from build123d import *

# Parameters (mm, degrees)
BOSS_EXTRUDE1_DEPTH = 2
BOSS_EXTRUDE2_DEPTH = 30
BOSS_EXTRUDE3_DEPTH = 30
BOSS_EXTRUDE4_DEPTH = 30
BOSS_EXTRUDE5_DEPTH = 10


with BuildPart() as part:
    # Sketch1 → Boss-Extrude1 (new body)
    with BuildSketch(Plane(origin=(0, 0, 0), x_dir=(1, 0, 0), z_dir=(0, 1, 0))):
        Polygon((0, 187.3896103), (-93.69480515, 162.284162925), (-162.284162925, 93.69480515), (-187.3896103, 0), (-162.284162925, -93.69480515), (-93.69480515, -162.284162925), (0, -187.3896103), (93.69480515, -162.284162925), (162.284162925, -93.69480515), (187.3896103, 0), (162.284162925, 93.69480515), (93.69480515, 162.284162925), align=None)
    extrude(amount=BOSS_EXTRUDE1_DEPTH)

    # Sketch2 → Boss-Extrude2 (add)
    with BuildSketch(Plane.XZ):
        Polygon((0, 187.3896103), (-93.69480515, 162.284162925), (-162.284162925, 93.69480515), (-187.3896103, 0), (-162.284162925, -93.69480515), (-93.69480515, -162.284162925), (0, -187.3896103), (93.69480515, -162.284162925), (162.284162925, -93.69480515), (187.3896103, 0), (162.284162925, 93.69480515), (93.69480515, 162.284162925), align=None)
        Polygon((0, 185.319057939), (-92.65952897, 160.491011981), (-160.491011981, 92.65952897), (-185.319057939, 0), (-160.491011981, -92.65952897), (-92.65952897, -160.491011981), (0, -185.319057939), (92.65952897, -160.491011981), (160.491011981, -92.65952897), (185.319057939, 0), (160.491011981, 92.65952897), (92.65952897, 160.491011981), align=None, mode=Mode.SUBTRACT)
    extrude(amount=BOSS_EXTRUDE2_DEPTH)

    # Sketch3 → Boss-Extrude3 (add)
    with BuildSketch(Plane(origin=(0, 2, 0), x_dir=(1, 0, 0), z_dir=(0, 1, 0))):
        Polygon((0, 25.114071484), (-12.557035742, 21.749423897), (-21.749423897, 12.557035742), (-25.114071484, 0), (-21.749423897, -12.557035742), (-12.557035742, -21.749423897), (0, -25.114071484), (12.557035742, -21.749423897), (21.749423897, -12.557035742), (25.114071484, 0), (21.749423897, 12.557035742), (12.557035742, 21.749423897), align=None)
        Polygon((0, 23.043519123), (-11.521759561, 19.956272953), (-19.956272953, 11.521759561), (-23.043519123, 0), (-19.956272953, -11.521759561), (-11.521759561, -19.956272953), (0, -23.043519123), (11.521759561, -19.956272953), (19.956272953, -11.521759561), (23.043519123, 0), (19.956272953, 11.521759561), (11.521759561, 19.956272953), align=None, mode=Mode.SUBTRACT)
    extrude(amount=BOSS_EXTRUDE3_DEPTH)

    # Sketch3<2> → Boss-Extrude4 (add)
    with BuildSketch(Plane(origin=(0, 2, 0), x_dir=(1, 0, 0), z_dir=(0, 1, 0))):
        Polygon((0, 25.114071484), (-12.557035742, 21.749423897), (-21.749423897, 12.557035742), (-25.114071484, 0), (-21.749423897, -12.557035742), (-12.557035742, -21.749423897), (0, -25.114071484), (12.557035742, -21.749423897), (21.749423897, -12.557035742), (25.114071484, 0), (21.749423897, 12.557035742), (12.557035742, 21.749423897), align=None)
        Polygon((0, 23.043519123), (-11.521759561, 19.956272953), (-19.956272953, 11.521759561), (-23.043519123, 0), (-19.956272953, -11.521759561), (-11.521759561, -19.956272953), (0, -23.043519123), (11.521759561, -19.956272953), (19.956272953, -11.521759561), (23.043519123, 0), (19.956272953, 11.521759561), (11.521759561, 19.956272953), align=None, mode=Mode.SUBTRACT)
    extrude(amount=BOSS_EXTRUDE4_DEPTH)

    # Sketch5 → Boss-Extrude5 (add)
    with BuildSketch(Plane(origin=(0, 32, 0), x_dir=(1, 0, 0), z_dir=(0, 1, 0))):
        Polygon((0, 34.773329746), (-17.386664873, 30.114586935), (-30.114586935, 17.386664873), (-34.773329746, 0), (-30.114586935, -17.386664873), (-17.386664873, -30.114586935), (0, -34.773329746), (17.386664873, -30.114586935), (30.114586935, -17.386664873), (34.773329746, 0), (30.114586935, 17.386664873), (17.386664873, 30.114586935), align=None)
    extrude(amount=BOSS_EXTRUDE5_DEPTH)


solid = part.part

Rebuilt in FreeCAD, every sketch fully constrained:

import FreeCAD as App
import Part
import Sketcher
from FreeCAD import Vector
Q = App.Units.Quantity


def add_polygon(sketch, points):
    """Adds a closed chain of lines whose ends are joined by coincident constraints."""
    first, n = sketch.GeometryCount, len(points)
    for a, b in zip(points, points[1:] + points[:1]):
        sketch.addGeometry(Part.LineSegment(App.Vector(*a, 0), App.Vector(*b, 0)), False)
    for i in range(n):
        sketch.addConstraint(Sketcher.Constraint("Coincident", first + i, 2, first + (i + 1) % n, 1))

doc = App.newDocument("Part")
body = doc.addObject("PartDesign::Body", "Body")

# Sketch on XZ plane
sketch1 = body.newObject("Sketcher::SketchObject", "Sketch")
sketch1.AttachmentSupport = (doc.getObject("XZ_Plane"), [""])
sketch1.MapMode = "FlatFace"
add_polygon(sketch1, [(0, -187.38961), (-93.694805, -162.284163), (-162.284163, -93.694805), (-187.38961, 0), (-162.284163, 93.694805), (-93.694805, 162.284163), (0, 187.38961), (93.694805, 162.284163), (162.284163, 93.694805), (187.38961, 0), (162.284163, -93.694805), (93.694805, -162.284163)])  # lines 0-11
sketch1.addConstraint(Sketcher.Constraint("Symmetric", 0, 2, 6, 2, -1, 1))
sketch1.addConstraint(Sketcher.Constraint("Symmetric", 1, 2, 7, 2, -1, 1))
sketch1.addConstraint(Sketcher.Constraint("Symmetric", 2, 2, 8, 2, -1, 1))
sketch1.addConstraint(Sketcher.Constraint("Symmetric", 3, 2, 9, 2, -1, 1))
sketch1.addConstraint(Sketcher.Constraint("Symmetric", 4, 2, 10, 2, -1, 1))
sketch1.addConstraint(Sketcher.Constraint("Symmetric", 5, 2, 11, 2, -1, 1))
sketch1.addConstraint(Sketcher.Constraint("Symmetric", 4, 2, 6, 2, -2))
sketch1.addConstraint(Sketcher.Constraint("Symmetric", 3, 2, 7, 2, -2))
sketch1.addConstraint(Sketcher.Constraint("PointOnObject", 2, 2, -1))
sketch1.addConstraint(Sketcher.Constraint("PointOnObject", 5, 2, -2))
sketch1.addConstraint(Sketcher.Constraint("Perpendicular", 0, 3))
sketch1.addConstraint(Sketcher.Constraint("Perpendicular", 1, 4))
sketch1.addConstraint(Sketcher.Constraint("Equal", 0, 1))
sketch1.addConstraint(Sketcher.Constraint("Equal", 1, 2))
sketch1.addConstraint(Sketcher.Constraint("Angle", 0, Q("165 deg")))
sketch1.addConstraint(Sketcher.Constraint("Distance", 0, 97.0))
pad1 = body.newObject("PartDesign::Pad", "Pad")
pad1.Profile = sketch1
pad1.Length = 2
pad1.Reversed = True

# Sketch on XZ plane
sketch2 = body.newObject("Sketcher::SketchObject", "Sketch001")
sketch2.AttachmentSupport = (doc.getObject("XZ_Plane"), [""])
sketch2.MapMode = "FlatFace"
add_polygon(sketch2, [(0, 187.38961), (-93.694805, 162.284163), (-162.284163, 93.694805), (-187.38961, 0), (-162.284163, -93.694805), (-93.694805, -162.284163), (0, -187.38961), (93.694805, -162.284163), (162.284163, -93.694805), (187.38961, 0), (162.284163, 93.694805), (93.694805, 162.284163)])  # lines 0-11
add_polygon(sketch2, [(-92.659529, 160.491012), (0, 185.319058), (92.659529, 160.491012), (160.491012, 92.659529), (185.319058, 0), (160.491012, -92.659529), (92.659529, -160.491012), (0, -185.319058), (-92.659529, -160.491012), (-160.491012, -92.659529), (-185.319058, 0), (-160.491012, 92.659529)])  # lines 12-23
sketch2.addConstraint(Sketcher.Constraint("Symmetric", 0, 2, 6, 2, -1, 1))
sketch2.addConstraint(Sketcher.Constraint("Symmetric", 1, 2, 7, 2, -1, 1))
sketch2.addConstraint(Sketcher.Constraint("Symmetric", 2, 2, 8, 2, -1, 1))
sketch2.addConstraint(Sketcher.Constraint("Symmetric", 3, 2, 9, 2, -1, 1))
sketch2.addConstraint(Sketcher.Constraint("Symmetric", 4, 2, 10, 2, -1, 1))
sketch2.addConstraint(Sketcher.Constraint("Symmetric", 5, 2, 11, 2, -1, 1))
sketch2.addConstraint(Sketcher.Constraint("Symmetric", 12, 2, 18, 2, -1, 1))
sketch2.addConstraint(Sketcher.Constraint("Symmetric", 13, 2, 19, 2, -1, 1))
sketch2.addConstraint(Sketcher.Constraint("Symmetric", 14, 2, 20, 2, -1, 1))
sketch2.addConstraint(Sketcher.Constraint("Symmetric", 15, 2, 21, 2, -1, 1))
sketch2.addConstraint(Sketcher.Constraint("Symmetric", 16, 2, 22, 2, -1, 1))
sketch2.addConstraint(Sketcher.Constraint("Symmetric", 17, 2, 23, 2, -1, 1))
sketch2.addConstraint(Sketcher.Constraint("Symmetric", 4, 2, 6, 2, -2))
sketch2.addConstraint(Sketcher.Constraint("Symmetric", 3, 2, 7, 2, -2))
sketch2.addConstraint(Sketcher.Constraint("Symmetric", 17, 2, 19, 2, -2))
sketch2.addConstraint(Sketcher.Constraint("Symmetric", 16, 2, 20, 2, -2))
sketch2.addConstraint(Sketcher.Constraint("PointOnObject", 2, 2, -1))
sketch2.addConstraint(Sketcher.Constraint("PointOnObject", 5, 2, -2))
sketch2.addConstraint(Sketcher.Constraint("PointOnObject", 12, 2, -2))
sketch2.addConstraint(Sketcher.Constraint("PointOnObject", 15, 2, -1))
sketch2.addConstraint(Sketcher.Constraint("Perpendicular", 0, 3))
sketch2.addConstraint(Sketcher.Constraint("Perpendicular", 1, 4))
sketch2.addConstraint(Sketcher.Constraint("Perpendicular", 9, 12))
sketch2.addConstraint(Sketcher.Constraint("Parallel", 10, 14))
sketch2.addConstraint(Sketcher.Constraint("Perpendicular", 12, 15))
sketch2.addConstraint(Sketcher.Constraint("Equal", 0, 1))
sketch2.addConstraint(Sketcher.Constraint("Equal", 1, 2))
sketch2.addConstraint(Sketcher.Constraint("Equal", 13, 14))
sketch2.addConstraint(Sketcher.Constraint("Equal", 14, 15))
sketch2.addConstraint(Sketcher.Constraint("Angle", 0, Q("-165 deg")))
sketch2.addConstraint(Sketcher.Constraint("Distance", 0, 97.0))
sketch2.addConstraint(Sketcher.Constraint("DistanceY", 13, 2, 11, 2, 26.898598))
pad2 = body.newObject("PartDesign::Pad", "Pad001")
pad2.Profile = sketch2
pad2.Length = 30

# Sketch on XZ plane
sketch3 = body.newObject("Sketcher::SketchObject", "Sketch002")
sketch3.AttachmentSupport = (doc.getObject("XZ_Plane"), [""])
sketch3.MapMode = "FlatFace"
sketch3.AttachmentOffset = App.Placement(Vector(0, 0, -2), App.Rotation())
add_polygon(sketch3, [(0, -25.114071), (-12.557036, -21.749424), (-21.749424, -12.557036), (-25.114071, 0), (-21.749424, 12.557036), (-12.557036, 21.749424), (0, 25.114071), (12.557036, 21.749424), (21.749424, 12.557036), (25.114071, 0), (21.749424, -12.557036), (12.557036, -21.749424)])  # lines 0-11
add_polygon(sketch3, [(-11.52176, -19.956273), (0, -23.043519), (11.52176, -19.956273), (19.956273, -11.52176), (23.043519, 0), (19.956273, 11.52176), (11.52176, 19.956273), (0, 23.043519), (-11.52176, 19.956273), (-19.956273, 11.52176), (-23.043519, 0), (-19.956273, -11.52176)])  # lines 12-23
sketch3.addConstraint(Sketcher.Constraint("Symmetric", 0, 2, 6, 2, -1, 1))
sketch3.addConstraint(Sketcher.Constraint("Symmetric", 1, 2, 7, 2, -1, 1))
sketch3.addConstraint(Sketcher.Constraint("Symmetric", 2, 2, 8, 2, -1, 1))
sketch3.addConstraint(Sketcher.Constraint("Symmetric", 3, 2, 9, 2, -1, 1))
sketch3.addConstraint(Sketcher.Constraint("Symmetric", 4, 2, 10, 2, -1, 1))
sketch3.addConstraint(Sketcher.Constraint("Symmetric", 5, 2, 11, 2, -1, 1))
sketch3.addConstraint(Sketcher.Constraint("Symmetric", 12, 2, 18, 2, -1, 1))
sketch3.addConstraint(Sketcher.Constraint("Symmetric", 13, 2, 19, 2, -1, 1))
sketch3.addConstraint(Sketcher.Constraint("Symmetric", 14, 2, 20, 2, -1, 1))
sketch3.addConstraint(Sketcher.Constraint("Symmetric", 15, 2, 21, 2, -1, 1))
sketch3.addConstraint(Sketcher.Constraint("Symmetric", 16, 2, 22, 2, -1, 1))
sketch3.addConstraint(Sketcher.Constraint("Symmetric", 17, 2, 23, 2, -1, 1))
sketch3.addConstraint(Sketcher.Constraint("Symmetric", 4, 2, 6, 2, -2))
sketch3.addConstraint(Sketcher.Constraint("Symmetric", 3, 2, 7, 2, -2))
sketch3.addConstraint(Sketcher.Constraint("Symmetric", 17, 2, 19, 2, -2))
sketch3.addConstraint(Sketcher.Constraint("Symmetric", 16, 2, 20, 2, -2))
sketch3.addConstraint(Sketcher.Constraint("PointOnObject", 2, 2, -1))
sketch3.addConstraint(Sketcher.Constraint("PointOnObject", 5, 2, -2))
sketch3.addConstraint(Sketcher.Constraint("PointOnObject", 12, 2, -2))
sketch3.addConstraint(Sketcher.Constraint("PointOnObject", 15, 2, -1))
sketch3.addConstraint(Sketcher.Constraint("Perpendicular", 0, 3))
sketch3.addConstraint(Sketcher.Constraint("Perpendicular", 1, 4))
sketch3.addConstraint(Sketcher.Constraint("Perpendicular", 9, 12))
sketch3.addConstraint(Sketcher.Constraint("Parallel", 10, 14))
sketch3.addConstraint(Sketcher.Constraint("Perpendicular", 12, 15))
sketch3.addConstraint(Sketcher.Constraint("Equal", 0, 1))
sketch3.addConstraint(Sketcher.Constraint("Equal", 1, 2))
sketch3.addConstraint(Sketcher.Constraint("Equal", 13, 14))
sketch3.addConstraint(Sketcher.Constraint("Equal", 14, 15))
sketch3.addConstraint(Sketcher.Constraint("Angle", 0, Q("165 deg")))
sketch3.addConstraint(Sketcher.Constraint("Distance", 0, 13.0))
sketch3.addConstraint(Sketcher.Constraint("DistanceY", 11, 2, 13, 2, 5.157799))
pad3 = body.newObject("PartDesign::Pad", "Pad002")
pad3.Profile = sketch3
pad3.Length = 30
pad3.Reversed = True

# Sketch on XZ plane
sketch4 = body.newObject("Sketcher::SketchObject", "Sketch003")
sketch4.AttachmentSupport = (doc.getObject("XZ_Plane"), [""])
sketch4.MapMode = "FlatFace"
sketch4.AttachmentOffset = App.Placement(Vector(0, 0, -2), App.Rotation())
add_polygon(sketch4, [(0, -25.114071), (-12.557036, -21.749424), (-21.749424, -12.557036), (-25.114071, 0), (-21.749424, 12.557036), (-12.557036, 21.749424), (0, 25.114071), (12.557036, 21.749424), (21.749424, 12.557036), (25.114071, 0), (21.749424, -12.557036), (12.557036, -21.749424)])  # lines 0-11
add_polygon(sketch4, [(-11.52176, -19.956273), (0, -23.043519), (11.52176, -19.956273), (19.956273, -11.52176), (23.043519, 0), (19.956273, 11.52176), (11.52176, 19.956273), (0, 23.043519), (-11.52176, 19.956273), (-19.956273, 11.52176), (-23.043519, 0), (-19.956273, -11.52176)])  # lines 12-23
sketch4.addConstraint(Sketcher.Constraint("Symmetric", 0, 2, 6, 2, -1, 1))
sketch4.addConstraint(Sketcher.Constraint("Symmetric", 1, 2, 7, 2, -1, 1))
sketch4.addConstraint(Sketcher.Constraint("Symmetric", 2, 2, 8, 2, -1, 1))
sketch4.addConstraint(Sketcher.Constraint("Symmetric", 3, 2, 9, 2, -1, 1))
sketch4.addConstraint(Sketcher.Constraint("Symmetric", 4, 2, 10, 2, -1, 1))
sketch4.addConstraint(Sketcher.Constraint("Symmetric", 5, 2, 11, 2, -1, 1))
sketch4.addConstraint(Sketcher.Constraint("Symmetric", 12, 2, 18, 2, -1, 1))
sketch4.addConstraint(Sketcher.Constraint("Symmetric", 13, 2, 19, 2, -1, 1))
sketch4.addConstraint(Sketcher.Constraint("Symmetric", 14, 2, 20, 2, -1, 1))
sketch4.addConstraint(Sketcher.Constraint("Symmetric", 15, 2, 21, 2, -1, 1))
sketch4.addConstraint(Sketcher.Constraint("Symmetric", 16, 2, 22, 2, -1, 1))
sketch4.addConstraint(Sketcher.Constraint("Symmetric", 17, 2, 23, 2, -1, 1))
sketch4.addConstraint(Sketcher.Constraint("Symmetric", 4, 2, 6, 2, -2))
sketch4.addConstraint(Sketcher.Constraint("Symmetric", 3, 2, 7, 2, -2))
sketch4.addConstraint(Sketcher.Constraint("Symmetric", 17, 2, 19, 2, -2))
sketch4.addConstraint(Sketcher.Constraint("Symmetric", 16, 2, 20, 2, -2))
sketch4.addConstraint(Sketcher.Constraint("PointOnObject", 2, 2, -1))
sketch4.addConstraint(Sketcher.Constraint("PointOnObject", 5, 2, -2))
sketch4.addConstraint(Sketcher.Constraint("PointOnObject", 12, 2, -2))
sketch4.addConstraint(Sketcher.Constraint("PointOnObject", 15, 2, -1))
sketch4.addConstraint(Sketcher.Constraint("Perpendicular", 0, 3))
sketch4.addConstraint(Sketcher.Constraint("Perpendicular", 1, 4))
sketch4.addConstraint(Sketcher.Constraint("Perpendicular", 9, 12))
sketch4.addConstraint(Sketcher.Constraint("Parallel", 10, 14))
sketch4.addConstraint(Sketcher.Constraint("Perpendicular", 12, 15))
sketch4.addConstraint(Sketcher.Constraint("Equal", 0, 1))
sketch4.addConstraint(Sketcher.Constraint("Equal", 1, 2))
sketch4.addConstraint(Sketcher.Constraint("Equal", 13, 14))
sketch4.addConstraint(Sketcher.Constraint("Equal", 14, 15))
sketch4.addConstraint(Sketcher.Constraint("Angle", 0, Q("165 deg")))
sketch4.addConstraint(Sketcher.Constraint("Distance", 0, 13.0))
sketch4.addConstraint(Sketcher.Constraint("DistanceY", 11, 2, 13, 2, 5.157799))
pad4 = body.newObject("PartDesign::Pad", "Pad003")
pad4.Profile = sketch4
pad4.Length = 30
pad4.Reversed = True

# Sketch on XZ plane
sketch5 = body.newObject("Sketcher::SketchObject", "Sketch004")
sketch5.AttachmentSupport = (doc.getObject("XZ_Plane"), [""])
sketch5.MapMode = "FlatFace"
sketch5.AttachmentOffset = App.Placement(Vector(0, 0, -32), App.Rotation())
add_polygon(sketch5, [(0, -34.77333), (-17.386665, -30.114587), (-30.114587, -17.386665), (-34.77333, 0), (-30.114587, 17.386665), (-17.386665, 30.114587), (0, 34.77333), (17.386665, 30.114587), (30.114587, 17.386665), (34.77333, 0), (30.114587, -17.386665), (17.386665, -30.114587)])  # lines 0-11
sketch5.addConstraint(Sketcher.Constraint("Symmetric", 0, 2, 6, 2, -1, 1))
sketch5.addConstraint(Sketcher.Constraint("Symmetric", 1, 2, 7, 2, -1, 1))
sketch5.addConstraint(Sketcher.Constraint("Symmetric", 2, 2, 8, 2, -1, 1))
sketch5.addConstraint(Sketcher.Constraint("Symmetric", 3, 2, 9, 2, -1, 1))
sketch5.addConstraint(Sketcher.Constraint("Symmetric", 4, 2, 10, 2, -1, 1))
sketch5.addConstraint(Sketcher.Constraint("Symmetric", 5, 2, 11, 2, -1, 1))
sketch5.addConstraint(Sketcher.Constraint("Symmetric", 4, 2, 6, 2, -2))
sketch5.addConstraint(Sketcher.Constraint("Symmetric", 3, 2, 7, 2, -2))
sketch5.addConstraint(Sketcher.Constraint("PointOnObject", 2, 2, -1))
sketch5.addConstraint(Sketcher.Constraint("PointOnObject", 5, 2, -2))
sketch5.addConstraint(Sketcher.Constraint("Perpendicular", 0, 3))
sketch5.addConstraint(Sketcher.Constraint("Perpendicular", 1, 4))
sketch5.addConstraint(Sketcher.Constraint("Equal", 0, 1))
sketch5.addConstraint(Sketcher.Constraint("Equal", 1, 2))
sketch5.addConstraint(Sketcher.Constraint("Angle", 0, Q("165 deg")))
sketch5.addConstraint(Sketcher.Constraint("Distance", 0, 18.0))
pad5 = body.newObject("PartDesign::Pad", "Pad004")
pad5.Profile = sketch5
pad5.Length = 10
pad5.Reversed = True

doc.recompute()
